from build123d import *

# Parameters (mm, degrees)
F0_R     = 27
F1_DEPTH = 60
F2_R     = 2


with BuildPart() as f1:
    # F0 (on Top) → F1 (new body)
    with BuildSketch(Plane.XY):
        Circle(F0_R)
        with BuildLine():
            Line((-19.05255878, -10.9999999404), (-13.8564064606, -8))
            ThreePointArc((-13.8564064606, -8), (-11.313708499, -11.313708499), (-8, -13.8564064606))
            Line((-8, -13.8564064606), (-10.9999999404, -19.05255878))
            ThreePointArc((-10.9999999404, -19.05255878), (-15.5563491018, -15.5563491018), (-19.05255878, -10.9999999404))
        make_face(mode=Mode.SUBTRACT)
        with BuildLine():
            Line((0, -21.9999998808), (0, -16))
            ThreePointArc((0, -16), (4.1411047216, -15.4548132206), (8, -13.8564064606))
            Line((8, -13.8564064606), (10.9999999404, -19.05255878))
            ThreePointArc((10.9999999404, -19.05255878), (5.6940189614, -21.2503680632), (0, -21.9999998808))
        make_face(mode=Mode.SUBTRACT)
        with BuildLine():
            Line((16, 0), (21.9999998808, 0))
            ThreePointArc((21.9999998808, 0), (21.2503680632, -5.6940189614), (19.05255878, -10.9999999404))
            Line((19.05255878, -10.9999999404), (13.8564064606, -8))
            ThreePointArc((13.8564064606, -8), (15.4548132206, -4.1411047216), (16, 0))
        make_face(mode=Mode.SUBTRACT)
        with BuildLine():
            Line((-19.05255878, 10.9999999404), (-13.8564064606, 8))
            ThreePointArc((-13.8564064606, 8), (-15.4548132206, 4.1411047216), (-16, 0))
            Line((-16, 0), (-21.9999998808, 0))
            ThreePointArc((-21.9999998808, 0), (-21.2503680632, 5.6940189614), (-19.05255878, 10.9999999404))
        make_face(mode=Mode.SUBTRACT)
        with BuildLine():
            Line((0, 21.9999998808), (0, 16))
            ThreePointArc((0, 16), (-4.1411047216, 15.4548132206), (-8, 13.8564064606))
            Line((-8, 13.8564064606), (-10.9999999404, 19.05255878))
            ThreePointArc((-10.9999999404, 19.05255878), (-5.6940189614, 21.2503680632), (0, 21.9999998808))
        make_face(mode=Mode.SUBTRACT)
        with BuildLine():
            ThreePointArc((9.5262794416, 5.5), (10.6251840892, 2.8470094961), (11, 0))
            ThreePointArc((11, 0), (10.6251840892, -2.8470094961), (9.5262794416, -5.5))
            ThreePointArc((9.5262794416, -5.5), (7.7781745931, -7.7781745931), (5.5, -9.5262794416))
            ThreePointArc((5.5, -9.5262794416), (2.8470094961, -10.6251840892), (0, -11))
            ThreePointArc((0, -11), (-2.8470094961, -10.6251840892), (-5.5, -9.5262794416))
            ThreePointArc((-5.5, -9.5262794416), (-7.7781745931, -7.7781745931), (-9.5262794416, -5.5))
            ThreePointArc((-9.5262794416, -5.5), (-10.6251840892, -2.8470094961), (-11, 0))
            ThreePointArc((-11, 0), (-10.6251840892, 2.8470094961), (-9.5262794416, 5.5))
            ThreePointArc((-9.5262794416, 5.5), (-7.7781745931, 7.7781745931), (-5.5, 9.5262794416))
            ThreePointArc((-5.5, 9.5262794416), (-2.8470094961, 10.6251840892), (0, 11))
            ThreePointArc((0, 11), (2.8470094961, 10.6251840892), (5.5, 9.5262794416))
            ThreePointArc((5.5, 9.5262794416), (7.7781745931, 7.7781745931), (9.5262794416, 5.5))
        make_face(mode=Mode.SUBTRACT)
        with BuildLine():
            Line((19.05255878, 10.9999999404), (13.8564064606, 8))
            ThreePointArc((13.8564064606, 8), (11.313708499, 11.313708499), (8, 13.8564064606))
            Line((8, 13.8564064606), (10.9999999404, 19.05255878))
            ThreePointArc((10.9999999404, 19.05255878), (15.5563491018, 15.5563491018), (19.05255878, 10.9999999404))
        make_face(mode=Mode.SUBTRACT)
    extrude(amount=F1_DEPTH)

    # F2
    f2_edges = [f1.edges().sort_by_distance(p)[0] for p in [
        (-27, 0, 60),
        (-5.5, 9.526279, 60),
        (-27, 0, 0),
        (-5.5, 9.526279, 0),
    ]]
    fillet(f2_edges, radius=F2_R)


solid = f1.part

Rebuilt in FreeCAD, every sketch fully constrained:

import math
import FreeCAD as App
import Part
import Sketcher

V = App.Vector
Q = App.Units.Quantity


def edges_at(feature, points):
    """Names of the edges that pass closest to the given points."""
    edges = feature.Shape.Edges
    near = lambda p: min(range(len(edges)), key=lambda i: edges[i].distToShape(Part.Vertex(*p))[0])
    return sorted({f"Edge{near(p) + 1}" for p in points})

doc = App.newDocument("Part")
params = doc.addObject("Spreadsheet::Sheet", "Params")
for row, (alias, value) in enumerate([
    ("sketch1_diameter", "54 mm"),
    ("sketch1_radius", "22 mm"),
    ("sketch1_radius2", "16 mm"),
    ("sketch1_radius3", "11 mm"),
    ("pad1_length", "60 mm"),
    ("fillet_radius", "2 mm"),
], start=1):
    params.set(f"A{row}", alias)
    params.set(f"B{row}", "=" + value)
    params.setAlias(f"B{row}", alias)

body = doc.addObject("PartDesign::Body", "Body")

# Sketch on XY plane
sketch1 = doc.addObject("Sketcher::SketchObject", "Sketch")
body.addObject(sketch1)
sketch1.AttachmentSupport = (doc.XY_Plane, [""])
sketch1.MapMode = "FlatFace"
sketch1.addGeometry([
    Part.Circle(V(0, 0, 0), V(0, 0, 1), 27),  # 0
    Part.ArcOfCircle(Part.Circle(V(0, 0, 0), V(0, 0, 1), 22), math.radians(-150), math.radians(-120)),  # 1
    Part.LineSegment(V(-19, -11, 0), V(-14, -8, 0)),  # 2
    Part.ArcOfCircle(Part.Circle(V(0, 0, 0), V(0, 0, 1), 16), math.radians(-150), math.radians(-120)),  # 3
    Part.LineSegment(V(-8, -14, 0), V(-11, -19, 0)),  # 4
    Part.ArcOfCircle(Part.Circle(V(0, 0, 0), V(0, 0, 1), 22), math.radians(-90), math.radians(-60)),  # 5
    Part.LineSegment(V(0, -22, 0), V(0, -16, 0)),  # 6
    Part.ArcOfCircle(Part.Circle(V(0, 0, 0), V(0, 0, 1), 16), math.radians(-90), math.radians(-60)),  # 7
    Part.LineSegment(V(8, -14, 0), V(11, -19, 0)),  # 8
    Part.ArcOfCircle(Part.Circle(V(0, 0, 0), V(0, 0, 1), 16), math.radians(-30), math.radians(0)),  # 9
    Part.LineSegment(V(16, 0, 0), V(22, 0, 0)),  # 10
    Part.ArcOfCircle(Part.Circle(V(0, 0, 0), V(0, 0, 1), 22), math.radians(-30), math.radians(0)),  # 11
    Part.LineSegment(V(19, -11, 0), V(14, -8, 0)),  # 12
    Part.ArcOfCircle(Part.Circle(V(0, 0, 0), V(0, 0, 1), 22), math.radians(150), math.radians(180)),  # 13
    Part.LineSegment(V(-19, 11, 0), V(-14, 8, 0)),  # 14
    Part.ArcOfCircle(Part.Circle(V(0, 0, 0), V(0, 0, 1), 16), math.radians(150), math.radians(180)),  # 15
    Part.LineSegment(V(-16, 0, 0), V(-22, 0, 0)),  # 16
    Part.ArcOfCircle(Part.Circle(V(0, 0, 0), V(0, 0, 1), 11), math.radians(30), math.radians(60)),  # 17
    Part.ArcOfCircle(Part.Circle(V(0, 0, 0), V(0, 0, 1), 11), math.radians(0), math.radians(30)),  # 18
    Part.ArcOfCircle(Part.Circle(V(0, 0, 0), V(0, 0, 1), 11), math.radians(-30), math.radians(0)),  # 19
    Part.ArcOfCircle(Part.Circle(V(0, 0, 0), V(0, 0, 1), 11), math.radians(-60), math.radians(-30)),  # 20
    Part.ArcOfCircle(Part.Circle(V(0, 0, 0), V(0, 0, 1), 11), math.radians(-90), math.radians(-60)),  # 21
    Part.ArcOfCircle(Part.Circle(V(0, 0, 0), V(0, 0, 1), 11), math.radians(-120), math.radians(-90)),  # 22
    Part.ArcOfCircle(Part.Circle(V(0, 0, 0), V(0, 0, 1), 11), math.radians(-150), math.radians(-120)),  # 23
    Part.ArcOfCircle(Part.Circle(V(0, 0, 0), V(0, 0, 1), 11), math.radians(180), math.radians(210)),  # 24
    Part.ArcOfCircle(Part.Circle(V(0, 0, 0), V(0, 0, 1), 11), math.radians(150), math.radians(180)),  # 25
    Part.ArcOfCircle(Part.Circle(V(0, 0, 0), V(0, 0, 1), 11), math.radians(120), math.radians(150)),  # 26
    Part.ArcOfCircle(Part.Circle(V(0, 0, 0), V(0, 0, 1), 11), math.radians(90), math.radians(120)),  # 27
    Part.ArcOfCircle(Part.Circle(V(0, 0, 0), V(0, 0, 1), 11), math.radians(60), math.radians(90)),  # 28
    Part.ArcOfCircle(Part.Circle(V(0, 0, 0), V(0, 0, 1), 22), math.radians(90), math.radians(120)),  # 29
    Part.LineSegment(V(0, 22, 0), V(0, 16, 0)),  # 30
    Part.ArcOfCircle(Part.Circle(V(0, 0, 0), V(0, 0, 1), 16), math.radians(90), math.radians(120)),  # 31
    Part.LineSegment(V(-8, 14, 0), V(-11, 19, 0)),  # 32
    Part.ArcOfCircle(Part.Circle(V(0, 0, 0), V(0, 0, 1), 22), math.radians(30), math.radians(60)),  # 33
    Part.LineSegment(V(19, 11, 0), V(14, 8, 0)),  # 34
    Part.ArcOfCircle(Part.Circle(V(0, 0, 0), V(0, 0, 1), 16), math.radians(30), math.radians(60)),  # 35
    Part.LineSegment(V(8, 14, 0), V(11, 19, 0)),  # 36
], False)
sketch1.addConstraint([
    Sketcher.Constraint("Coincident", 1, 1, 2, 1),
    Sketcher.Constraint("Coincident", 2, 2, 3, 1),
    Sketcher.Constraint("Coincident", 3, 2, 4, 1),
    Sketcher.Constraint("Coincident", 4, 2, 1, 2),
    Sketcher.Constraint("Coincident", 5, 1, 6, 1),
    Sketcher.Constraint("Coincident", 6, 2, 7, 1),
    Sketcher.Constraint("Coincident", 7, 2, 8, 1),
    Sketcher.Constraint("Coincident", 8, 2, 5, 2),
    Sketcher.Constraint("Coincident", 9, 2, 10, 1),
    Sketcher.Constraint("Coincident", 10, 2, 11, 2),
    Sketcher.Constraint("Coincident", 11, 1, 12, 1),
    Sketcher.Constraint("Coincident", 12, 2, 9, 1),
    Sketcher.Constraint("Coincident", 13, 1, 14, 1),
    Sketcher.Constraint("Coincident", 14, 2, 15, 1),
    Sketcher.Constraint("Coincident", 15, 2, 16, 1),
    Sketcher.Constraint("Coincident", 16, 2, 13, 2),
    Sketcher.Constraint("Tangent", 17, 1, 18, 2),
    Sketcher.Constraint("Tangent", 18, 1, 19, 2),
    Sketcher.Constraint("Tangent", 19, 1, 20, 2),
    Sketcher.Constraint("Tangent", 20, 1, 21, 2),
    Sketcher.Constraint("Tangent", 21, 1, 22, 2),
    Sketcher.Constraint("Tangent", 22, 1, 23, 2),
    Sketcher.Constraint("Tangent", 23, 1, 24, 2),
    Sketcher.Constraint("Tangent", 24, 1, 25, 2),
    Sketcher.Constraint("Tangent", 25, 1, 26, 2),
    Sketcher.Constraint("Tangent", 26, 1, 27, 2),
    Sketcher.Constraint("Tangent", 27, 1, 28, 2),
    Sketcher.Constraint("Tangent", 28, 1, 17, 2),
    Sketcher.Constraint("Coincident", 29, 1, 30, 1),
    Sketcher.Constraint("Coincident", 30, 2, 31, 1),
    Sketcher.Constraint("Coincident", 31, 2, 32, 1),
    Sketcher.Constraint("Coincident", 32, 2, 29, 2),
    Sketcher.Constraint("Coincident", 33, 1, 34, 1),
    Sketcher.Constraint("Coincident", 34, 2, 35, 1),
    Sketcher.Constraint("Coincident", 35, 2, 36, 1),
    Sketcher.Constraint("Coincident", 36, 2, 33, 2),
    Sketcher.Constraint("Vertical", 6),
    Sketcher.Constraint("Horizontal", 10),
    Sketcher.Constraint("Horizontal", 16),
    Sketcher.Constraint("Vertical", 30),
    Sketcher.Constraint("Coincident", 0, 3, -1, 1),
    Sketcher.Constraint("Coincident", 1, 3, -1, 1),
    Sketcher.Constraint("Coincident", 3, 3, -1, 1),
    Sketcher.Constraint("Coincident", 5, 3, -1, 1),
    Sketcher.Constraint("Coincident", 7, 3, -1, 1),
    Sketcher.Constraint("Coincident", 9, 3, -1, 1),
    Sketcher.Constraint("Coincident", 11, 3, -1, 1),
    Sketcher.Constraint("Coincident", 13, 3, -1, 1),
    Sketcher.Constraint("Coincident", 15, 3, -1, 1),
    Sketcher.Constraint("Coincident", 17, 3, -1, 1),
    Sketcher.Constraint("Coincident", 19, 3, -1, 1),
    Sketcher.Constraint("Coincident", 21, 3, -1, 1),
    Sketcher.Constraint("Coincident", 23, 3, -1, 1),
    Sketcher.Constraint("Coincident", 25, 3, -1, 1),
    Sketcher.Constraint("Coincident", 29, 3, -1, 1),
    Sketcher.Constraint("Coincident", 31, 3, -1, 1),
    Sketcher.Constraint("Coincident", 33, 3, -1, 1),
    Sketcher.Constraint("Coincident", 35, 3, -1, 1),
    Sketcher.Constraint("Equal", 1, 5),
    Sketcher.Constraint("Equal", 3, 7),
    Sketcher.Constraint("Equal", 7, 9),
    Sketcher.Constraint("Equal", 5, 11),
    Sketcher.Constraint("Equal", 11, 13),
    Sketcher.Constraint("Equal", 9, 15),
    Sketcher.Constraint("Equal", 25, 26),
    Sketcher.Constraint("Equal", 13, 29),
    Sketcher.Constraint("Equal", 15, 31),
    Sketcher.Constraint("Equal", 29, 33),
    Sketcher.Constraint("Equal", 31, 35),
    Sketcher.Constraint("PointOnObject", 5, 1, -2),
    Sketcher.Constraint("PointOnObject", 9, 2, -1),
    Sketcher.Constraint("PointOnObject", 15, 2, -1),
    Sketcher.Constraint("PointOnObject", 18, 1, -1),
    Sketcher.Constraint("PointOnObject", 21, 1, -2),
    Sketcher.Constraint("PointOnObject", 24, 1, -1),
    Sketcher.Constraint("PointOnObject", 27, 1, -2),
    Sketcher.Constraint("PointOnObject", 29, 1, -2),
    Sketcher.Constraint("Perpendicular", 2, 8),
    Sketcher.Constraint("Perpendicular", 4, 12),
    Sketcher.Constraint("Parallel", 12, 14),
    Sketcher.Constraint("Parallel", 8, 32),
    Sketcher.Constraint("Perpendicular", 32, 34),
    Sketcher.Constraint("Perpendicular", 14, 36),
    Sketcher.Constraint("Horizontal", 3, 2, 7, 2),
    Sketcher.Constraint("Horizontal", 4, 2, 8, 2),
    Sketcher.Constraint("Horizontal", 1, 1, 11, 1),
    Sketcher.Constraint("Horizontal", 11, 1, 21, 1),
    Sketcher.Constraint("Horizontal", 20, 1, 22, 1),
    Sketcher.Constraint("Horizontal", 19, 1, 23, 1),
    Sketcher.Constraint("Horizontal", 17, 1, 25, 1),
    Sketcher.Constraint("Horizontal", 13, 1, 27, 1),
    Sketcher.Constraint("Horizontal", 26, 1, 28, 1),
    Sketcher.Constraint("Horizontal", 27, 1, 33, 1),
    Sketcher.Constraint("Horizontal", 31, 2, 35, 2),
    Sketcher.Constraint("Vertical", 8, 2, 18, 1),
    Sketcher.Constraint("Vertical", 17, 1, 19, 1),
    Sketcher.Constraint("Vertical", 22, 1, 26, 1),
    Sketcher.Constraint("Vertical", 3, 2, 31, 2),
    Sketcher.Constraint("Diameter", 0, Q("54 mm")),
    Sketcher.Constraint("Radius", 1, Q("22 mm")),
    Sketcher.Constraint("Radius", 3, Q("16 mm")),
    Sketcher.Constraint("Radius", 17, Q("11 mm")),
    Sketcher.Constraint("Angle", 2, Q("30 deg")),
    Sketcher.Constraint("DistanceY", -1, 1, 17, 1, Q("5.5 mm")),
    Sketcher.Constraint("DistanceX", -1, 1, 20, 1, Q("5.5 mm")),
])
sketch1.setExpression("Constraints[98]", "Params.sketch1_diameter")
sketch1.setExpression("Constraints[99]", "Params.sketch1_radius")
sketch1.setExpression("Constraints[100]", "Params.sketch1_radius2")
sketch1.setExpression("Constraints[101]", "Params.sketch1_radius3")
pad1 = doc.addObject("PartDesign::Pad", "Pad")
body.addObject(pad1)
pad1.Profile = sketch1
pad1.setExpression("Length", "Params.pad1_length")
doc.recompute()

fillet = doc.addObject("PartDesign::Fillet", "Fillet")
body.addObject(fillet)
fillet.Base = (pad1, edges_at(pad1, [
    (-27, 0, 60),
    (-7.778, 7.778, 60),
    (-27, 0, 0),
    (-7.778, 7.778, 0),
]))
fillet.setExpression("Radius", "Params.fillet_radius")

doc.recompute()
